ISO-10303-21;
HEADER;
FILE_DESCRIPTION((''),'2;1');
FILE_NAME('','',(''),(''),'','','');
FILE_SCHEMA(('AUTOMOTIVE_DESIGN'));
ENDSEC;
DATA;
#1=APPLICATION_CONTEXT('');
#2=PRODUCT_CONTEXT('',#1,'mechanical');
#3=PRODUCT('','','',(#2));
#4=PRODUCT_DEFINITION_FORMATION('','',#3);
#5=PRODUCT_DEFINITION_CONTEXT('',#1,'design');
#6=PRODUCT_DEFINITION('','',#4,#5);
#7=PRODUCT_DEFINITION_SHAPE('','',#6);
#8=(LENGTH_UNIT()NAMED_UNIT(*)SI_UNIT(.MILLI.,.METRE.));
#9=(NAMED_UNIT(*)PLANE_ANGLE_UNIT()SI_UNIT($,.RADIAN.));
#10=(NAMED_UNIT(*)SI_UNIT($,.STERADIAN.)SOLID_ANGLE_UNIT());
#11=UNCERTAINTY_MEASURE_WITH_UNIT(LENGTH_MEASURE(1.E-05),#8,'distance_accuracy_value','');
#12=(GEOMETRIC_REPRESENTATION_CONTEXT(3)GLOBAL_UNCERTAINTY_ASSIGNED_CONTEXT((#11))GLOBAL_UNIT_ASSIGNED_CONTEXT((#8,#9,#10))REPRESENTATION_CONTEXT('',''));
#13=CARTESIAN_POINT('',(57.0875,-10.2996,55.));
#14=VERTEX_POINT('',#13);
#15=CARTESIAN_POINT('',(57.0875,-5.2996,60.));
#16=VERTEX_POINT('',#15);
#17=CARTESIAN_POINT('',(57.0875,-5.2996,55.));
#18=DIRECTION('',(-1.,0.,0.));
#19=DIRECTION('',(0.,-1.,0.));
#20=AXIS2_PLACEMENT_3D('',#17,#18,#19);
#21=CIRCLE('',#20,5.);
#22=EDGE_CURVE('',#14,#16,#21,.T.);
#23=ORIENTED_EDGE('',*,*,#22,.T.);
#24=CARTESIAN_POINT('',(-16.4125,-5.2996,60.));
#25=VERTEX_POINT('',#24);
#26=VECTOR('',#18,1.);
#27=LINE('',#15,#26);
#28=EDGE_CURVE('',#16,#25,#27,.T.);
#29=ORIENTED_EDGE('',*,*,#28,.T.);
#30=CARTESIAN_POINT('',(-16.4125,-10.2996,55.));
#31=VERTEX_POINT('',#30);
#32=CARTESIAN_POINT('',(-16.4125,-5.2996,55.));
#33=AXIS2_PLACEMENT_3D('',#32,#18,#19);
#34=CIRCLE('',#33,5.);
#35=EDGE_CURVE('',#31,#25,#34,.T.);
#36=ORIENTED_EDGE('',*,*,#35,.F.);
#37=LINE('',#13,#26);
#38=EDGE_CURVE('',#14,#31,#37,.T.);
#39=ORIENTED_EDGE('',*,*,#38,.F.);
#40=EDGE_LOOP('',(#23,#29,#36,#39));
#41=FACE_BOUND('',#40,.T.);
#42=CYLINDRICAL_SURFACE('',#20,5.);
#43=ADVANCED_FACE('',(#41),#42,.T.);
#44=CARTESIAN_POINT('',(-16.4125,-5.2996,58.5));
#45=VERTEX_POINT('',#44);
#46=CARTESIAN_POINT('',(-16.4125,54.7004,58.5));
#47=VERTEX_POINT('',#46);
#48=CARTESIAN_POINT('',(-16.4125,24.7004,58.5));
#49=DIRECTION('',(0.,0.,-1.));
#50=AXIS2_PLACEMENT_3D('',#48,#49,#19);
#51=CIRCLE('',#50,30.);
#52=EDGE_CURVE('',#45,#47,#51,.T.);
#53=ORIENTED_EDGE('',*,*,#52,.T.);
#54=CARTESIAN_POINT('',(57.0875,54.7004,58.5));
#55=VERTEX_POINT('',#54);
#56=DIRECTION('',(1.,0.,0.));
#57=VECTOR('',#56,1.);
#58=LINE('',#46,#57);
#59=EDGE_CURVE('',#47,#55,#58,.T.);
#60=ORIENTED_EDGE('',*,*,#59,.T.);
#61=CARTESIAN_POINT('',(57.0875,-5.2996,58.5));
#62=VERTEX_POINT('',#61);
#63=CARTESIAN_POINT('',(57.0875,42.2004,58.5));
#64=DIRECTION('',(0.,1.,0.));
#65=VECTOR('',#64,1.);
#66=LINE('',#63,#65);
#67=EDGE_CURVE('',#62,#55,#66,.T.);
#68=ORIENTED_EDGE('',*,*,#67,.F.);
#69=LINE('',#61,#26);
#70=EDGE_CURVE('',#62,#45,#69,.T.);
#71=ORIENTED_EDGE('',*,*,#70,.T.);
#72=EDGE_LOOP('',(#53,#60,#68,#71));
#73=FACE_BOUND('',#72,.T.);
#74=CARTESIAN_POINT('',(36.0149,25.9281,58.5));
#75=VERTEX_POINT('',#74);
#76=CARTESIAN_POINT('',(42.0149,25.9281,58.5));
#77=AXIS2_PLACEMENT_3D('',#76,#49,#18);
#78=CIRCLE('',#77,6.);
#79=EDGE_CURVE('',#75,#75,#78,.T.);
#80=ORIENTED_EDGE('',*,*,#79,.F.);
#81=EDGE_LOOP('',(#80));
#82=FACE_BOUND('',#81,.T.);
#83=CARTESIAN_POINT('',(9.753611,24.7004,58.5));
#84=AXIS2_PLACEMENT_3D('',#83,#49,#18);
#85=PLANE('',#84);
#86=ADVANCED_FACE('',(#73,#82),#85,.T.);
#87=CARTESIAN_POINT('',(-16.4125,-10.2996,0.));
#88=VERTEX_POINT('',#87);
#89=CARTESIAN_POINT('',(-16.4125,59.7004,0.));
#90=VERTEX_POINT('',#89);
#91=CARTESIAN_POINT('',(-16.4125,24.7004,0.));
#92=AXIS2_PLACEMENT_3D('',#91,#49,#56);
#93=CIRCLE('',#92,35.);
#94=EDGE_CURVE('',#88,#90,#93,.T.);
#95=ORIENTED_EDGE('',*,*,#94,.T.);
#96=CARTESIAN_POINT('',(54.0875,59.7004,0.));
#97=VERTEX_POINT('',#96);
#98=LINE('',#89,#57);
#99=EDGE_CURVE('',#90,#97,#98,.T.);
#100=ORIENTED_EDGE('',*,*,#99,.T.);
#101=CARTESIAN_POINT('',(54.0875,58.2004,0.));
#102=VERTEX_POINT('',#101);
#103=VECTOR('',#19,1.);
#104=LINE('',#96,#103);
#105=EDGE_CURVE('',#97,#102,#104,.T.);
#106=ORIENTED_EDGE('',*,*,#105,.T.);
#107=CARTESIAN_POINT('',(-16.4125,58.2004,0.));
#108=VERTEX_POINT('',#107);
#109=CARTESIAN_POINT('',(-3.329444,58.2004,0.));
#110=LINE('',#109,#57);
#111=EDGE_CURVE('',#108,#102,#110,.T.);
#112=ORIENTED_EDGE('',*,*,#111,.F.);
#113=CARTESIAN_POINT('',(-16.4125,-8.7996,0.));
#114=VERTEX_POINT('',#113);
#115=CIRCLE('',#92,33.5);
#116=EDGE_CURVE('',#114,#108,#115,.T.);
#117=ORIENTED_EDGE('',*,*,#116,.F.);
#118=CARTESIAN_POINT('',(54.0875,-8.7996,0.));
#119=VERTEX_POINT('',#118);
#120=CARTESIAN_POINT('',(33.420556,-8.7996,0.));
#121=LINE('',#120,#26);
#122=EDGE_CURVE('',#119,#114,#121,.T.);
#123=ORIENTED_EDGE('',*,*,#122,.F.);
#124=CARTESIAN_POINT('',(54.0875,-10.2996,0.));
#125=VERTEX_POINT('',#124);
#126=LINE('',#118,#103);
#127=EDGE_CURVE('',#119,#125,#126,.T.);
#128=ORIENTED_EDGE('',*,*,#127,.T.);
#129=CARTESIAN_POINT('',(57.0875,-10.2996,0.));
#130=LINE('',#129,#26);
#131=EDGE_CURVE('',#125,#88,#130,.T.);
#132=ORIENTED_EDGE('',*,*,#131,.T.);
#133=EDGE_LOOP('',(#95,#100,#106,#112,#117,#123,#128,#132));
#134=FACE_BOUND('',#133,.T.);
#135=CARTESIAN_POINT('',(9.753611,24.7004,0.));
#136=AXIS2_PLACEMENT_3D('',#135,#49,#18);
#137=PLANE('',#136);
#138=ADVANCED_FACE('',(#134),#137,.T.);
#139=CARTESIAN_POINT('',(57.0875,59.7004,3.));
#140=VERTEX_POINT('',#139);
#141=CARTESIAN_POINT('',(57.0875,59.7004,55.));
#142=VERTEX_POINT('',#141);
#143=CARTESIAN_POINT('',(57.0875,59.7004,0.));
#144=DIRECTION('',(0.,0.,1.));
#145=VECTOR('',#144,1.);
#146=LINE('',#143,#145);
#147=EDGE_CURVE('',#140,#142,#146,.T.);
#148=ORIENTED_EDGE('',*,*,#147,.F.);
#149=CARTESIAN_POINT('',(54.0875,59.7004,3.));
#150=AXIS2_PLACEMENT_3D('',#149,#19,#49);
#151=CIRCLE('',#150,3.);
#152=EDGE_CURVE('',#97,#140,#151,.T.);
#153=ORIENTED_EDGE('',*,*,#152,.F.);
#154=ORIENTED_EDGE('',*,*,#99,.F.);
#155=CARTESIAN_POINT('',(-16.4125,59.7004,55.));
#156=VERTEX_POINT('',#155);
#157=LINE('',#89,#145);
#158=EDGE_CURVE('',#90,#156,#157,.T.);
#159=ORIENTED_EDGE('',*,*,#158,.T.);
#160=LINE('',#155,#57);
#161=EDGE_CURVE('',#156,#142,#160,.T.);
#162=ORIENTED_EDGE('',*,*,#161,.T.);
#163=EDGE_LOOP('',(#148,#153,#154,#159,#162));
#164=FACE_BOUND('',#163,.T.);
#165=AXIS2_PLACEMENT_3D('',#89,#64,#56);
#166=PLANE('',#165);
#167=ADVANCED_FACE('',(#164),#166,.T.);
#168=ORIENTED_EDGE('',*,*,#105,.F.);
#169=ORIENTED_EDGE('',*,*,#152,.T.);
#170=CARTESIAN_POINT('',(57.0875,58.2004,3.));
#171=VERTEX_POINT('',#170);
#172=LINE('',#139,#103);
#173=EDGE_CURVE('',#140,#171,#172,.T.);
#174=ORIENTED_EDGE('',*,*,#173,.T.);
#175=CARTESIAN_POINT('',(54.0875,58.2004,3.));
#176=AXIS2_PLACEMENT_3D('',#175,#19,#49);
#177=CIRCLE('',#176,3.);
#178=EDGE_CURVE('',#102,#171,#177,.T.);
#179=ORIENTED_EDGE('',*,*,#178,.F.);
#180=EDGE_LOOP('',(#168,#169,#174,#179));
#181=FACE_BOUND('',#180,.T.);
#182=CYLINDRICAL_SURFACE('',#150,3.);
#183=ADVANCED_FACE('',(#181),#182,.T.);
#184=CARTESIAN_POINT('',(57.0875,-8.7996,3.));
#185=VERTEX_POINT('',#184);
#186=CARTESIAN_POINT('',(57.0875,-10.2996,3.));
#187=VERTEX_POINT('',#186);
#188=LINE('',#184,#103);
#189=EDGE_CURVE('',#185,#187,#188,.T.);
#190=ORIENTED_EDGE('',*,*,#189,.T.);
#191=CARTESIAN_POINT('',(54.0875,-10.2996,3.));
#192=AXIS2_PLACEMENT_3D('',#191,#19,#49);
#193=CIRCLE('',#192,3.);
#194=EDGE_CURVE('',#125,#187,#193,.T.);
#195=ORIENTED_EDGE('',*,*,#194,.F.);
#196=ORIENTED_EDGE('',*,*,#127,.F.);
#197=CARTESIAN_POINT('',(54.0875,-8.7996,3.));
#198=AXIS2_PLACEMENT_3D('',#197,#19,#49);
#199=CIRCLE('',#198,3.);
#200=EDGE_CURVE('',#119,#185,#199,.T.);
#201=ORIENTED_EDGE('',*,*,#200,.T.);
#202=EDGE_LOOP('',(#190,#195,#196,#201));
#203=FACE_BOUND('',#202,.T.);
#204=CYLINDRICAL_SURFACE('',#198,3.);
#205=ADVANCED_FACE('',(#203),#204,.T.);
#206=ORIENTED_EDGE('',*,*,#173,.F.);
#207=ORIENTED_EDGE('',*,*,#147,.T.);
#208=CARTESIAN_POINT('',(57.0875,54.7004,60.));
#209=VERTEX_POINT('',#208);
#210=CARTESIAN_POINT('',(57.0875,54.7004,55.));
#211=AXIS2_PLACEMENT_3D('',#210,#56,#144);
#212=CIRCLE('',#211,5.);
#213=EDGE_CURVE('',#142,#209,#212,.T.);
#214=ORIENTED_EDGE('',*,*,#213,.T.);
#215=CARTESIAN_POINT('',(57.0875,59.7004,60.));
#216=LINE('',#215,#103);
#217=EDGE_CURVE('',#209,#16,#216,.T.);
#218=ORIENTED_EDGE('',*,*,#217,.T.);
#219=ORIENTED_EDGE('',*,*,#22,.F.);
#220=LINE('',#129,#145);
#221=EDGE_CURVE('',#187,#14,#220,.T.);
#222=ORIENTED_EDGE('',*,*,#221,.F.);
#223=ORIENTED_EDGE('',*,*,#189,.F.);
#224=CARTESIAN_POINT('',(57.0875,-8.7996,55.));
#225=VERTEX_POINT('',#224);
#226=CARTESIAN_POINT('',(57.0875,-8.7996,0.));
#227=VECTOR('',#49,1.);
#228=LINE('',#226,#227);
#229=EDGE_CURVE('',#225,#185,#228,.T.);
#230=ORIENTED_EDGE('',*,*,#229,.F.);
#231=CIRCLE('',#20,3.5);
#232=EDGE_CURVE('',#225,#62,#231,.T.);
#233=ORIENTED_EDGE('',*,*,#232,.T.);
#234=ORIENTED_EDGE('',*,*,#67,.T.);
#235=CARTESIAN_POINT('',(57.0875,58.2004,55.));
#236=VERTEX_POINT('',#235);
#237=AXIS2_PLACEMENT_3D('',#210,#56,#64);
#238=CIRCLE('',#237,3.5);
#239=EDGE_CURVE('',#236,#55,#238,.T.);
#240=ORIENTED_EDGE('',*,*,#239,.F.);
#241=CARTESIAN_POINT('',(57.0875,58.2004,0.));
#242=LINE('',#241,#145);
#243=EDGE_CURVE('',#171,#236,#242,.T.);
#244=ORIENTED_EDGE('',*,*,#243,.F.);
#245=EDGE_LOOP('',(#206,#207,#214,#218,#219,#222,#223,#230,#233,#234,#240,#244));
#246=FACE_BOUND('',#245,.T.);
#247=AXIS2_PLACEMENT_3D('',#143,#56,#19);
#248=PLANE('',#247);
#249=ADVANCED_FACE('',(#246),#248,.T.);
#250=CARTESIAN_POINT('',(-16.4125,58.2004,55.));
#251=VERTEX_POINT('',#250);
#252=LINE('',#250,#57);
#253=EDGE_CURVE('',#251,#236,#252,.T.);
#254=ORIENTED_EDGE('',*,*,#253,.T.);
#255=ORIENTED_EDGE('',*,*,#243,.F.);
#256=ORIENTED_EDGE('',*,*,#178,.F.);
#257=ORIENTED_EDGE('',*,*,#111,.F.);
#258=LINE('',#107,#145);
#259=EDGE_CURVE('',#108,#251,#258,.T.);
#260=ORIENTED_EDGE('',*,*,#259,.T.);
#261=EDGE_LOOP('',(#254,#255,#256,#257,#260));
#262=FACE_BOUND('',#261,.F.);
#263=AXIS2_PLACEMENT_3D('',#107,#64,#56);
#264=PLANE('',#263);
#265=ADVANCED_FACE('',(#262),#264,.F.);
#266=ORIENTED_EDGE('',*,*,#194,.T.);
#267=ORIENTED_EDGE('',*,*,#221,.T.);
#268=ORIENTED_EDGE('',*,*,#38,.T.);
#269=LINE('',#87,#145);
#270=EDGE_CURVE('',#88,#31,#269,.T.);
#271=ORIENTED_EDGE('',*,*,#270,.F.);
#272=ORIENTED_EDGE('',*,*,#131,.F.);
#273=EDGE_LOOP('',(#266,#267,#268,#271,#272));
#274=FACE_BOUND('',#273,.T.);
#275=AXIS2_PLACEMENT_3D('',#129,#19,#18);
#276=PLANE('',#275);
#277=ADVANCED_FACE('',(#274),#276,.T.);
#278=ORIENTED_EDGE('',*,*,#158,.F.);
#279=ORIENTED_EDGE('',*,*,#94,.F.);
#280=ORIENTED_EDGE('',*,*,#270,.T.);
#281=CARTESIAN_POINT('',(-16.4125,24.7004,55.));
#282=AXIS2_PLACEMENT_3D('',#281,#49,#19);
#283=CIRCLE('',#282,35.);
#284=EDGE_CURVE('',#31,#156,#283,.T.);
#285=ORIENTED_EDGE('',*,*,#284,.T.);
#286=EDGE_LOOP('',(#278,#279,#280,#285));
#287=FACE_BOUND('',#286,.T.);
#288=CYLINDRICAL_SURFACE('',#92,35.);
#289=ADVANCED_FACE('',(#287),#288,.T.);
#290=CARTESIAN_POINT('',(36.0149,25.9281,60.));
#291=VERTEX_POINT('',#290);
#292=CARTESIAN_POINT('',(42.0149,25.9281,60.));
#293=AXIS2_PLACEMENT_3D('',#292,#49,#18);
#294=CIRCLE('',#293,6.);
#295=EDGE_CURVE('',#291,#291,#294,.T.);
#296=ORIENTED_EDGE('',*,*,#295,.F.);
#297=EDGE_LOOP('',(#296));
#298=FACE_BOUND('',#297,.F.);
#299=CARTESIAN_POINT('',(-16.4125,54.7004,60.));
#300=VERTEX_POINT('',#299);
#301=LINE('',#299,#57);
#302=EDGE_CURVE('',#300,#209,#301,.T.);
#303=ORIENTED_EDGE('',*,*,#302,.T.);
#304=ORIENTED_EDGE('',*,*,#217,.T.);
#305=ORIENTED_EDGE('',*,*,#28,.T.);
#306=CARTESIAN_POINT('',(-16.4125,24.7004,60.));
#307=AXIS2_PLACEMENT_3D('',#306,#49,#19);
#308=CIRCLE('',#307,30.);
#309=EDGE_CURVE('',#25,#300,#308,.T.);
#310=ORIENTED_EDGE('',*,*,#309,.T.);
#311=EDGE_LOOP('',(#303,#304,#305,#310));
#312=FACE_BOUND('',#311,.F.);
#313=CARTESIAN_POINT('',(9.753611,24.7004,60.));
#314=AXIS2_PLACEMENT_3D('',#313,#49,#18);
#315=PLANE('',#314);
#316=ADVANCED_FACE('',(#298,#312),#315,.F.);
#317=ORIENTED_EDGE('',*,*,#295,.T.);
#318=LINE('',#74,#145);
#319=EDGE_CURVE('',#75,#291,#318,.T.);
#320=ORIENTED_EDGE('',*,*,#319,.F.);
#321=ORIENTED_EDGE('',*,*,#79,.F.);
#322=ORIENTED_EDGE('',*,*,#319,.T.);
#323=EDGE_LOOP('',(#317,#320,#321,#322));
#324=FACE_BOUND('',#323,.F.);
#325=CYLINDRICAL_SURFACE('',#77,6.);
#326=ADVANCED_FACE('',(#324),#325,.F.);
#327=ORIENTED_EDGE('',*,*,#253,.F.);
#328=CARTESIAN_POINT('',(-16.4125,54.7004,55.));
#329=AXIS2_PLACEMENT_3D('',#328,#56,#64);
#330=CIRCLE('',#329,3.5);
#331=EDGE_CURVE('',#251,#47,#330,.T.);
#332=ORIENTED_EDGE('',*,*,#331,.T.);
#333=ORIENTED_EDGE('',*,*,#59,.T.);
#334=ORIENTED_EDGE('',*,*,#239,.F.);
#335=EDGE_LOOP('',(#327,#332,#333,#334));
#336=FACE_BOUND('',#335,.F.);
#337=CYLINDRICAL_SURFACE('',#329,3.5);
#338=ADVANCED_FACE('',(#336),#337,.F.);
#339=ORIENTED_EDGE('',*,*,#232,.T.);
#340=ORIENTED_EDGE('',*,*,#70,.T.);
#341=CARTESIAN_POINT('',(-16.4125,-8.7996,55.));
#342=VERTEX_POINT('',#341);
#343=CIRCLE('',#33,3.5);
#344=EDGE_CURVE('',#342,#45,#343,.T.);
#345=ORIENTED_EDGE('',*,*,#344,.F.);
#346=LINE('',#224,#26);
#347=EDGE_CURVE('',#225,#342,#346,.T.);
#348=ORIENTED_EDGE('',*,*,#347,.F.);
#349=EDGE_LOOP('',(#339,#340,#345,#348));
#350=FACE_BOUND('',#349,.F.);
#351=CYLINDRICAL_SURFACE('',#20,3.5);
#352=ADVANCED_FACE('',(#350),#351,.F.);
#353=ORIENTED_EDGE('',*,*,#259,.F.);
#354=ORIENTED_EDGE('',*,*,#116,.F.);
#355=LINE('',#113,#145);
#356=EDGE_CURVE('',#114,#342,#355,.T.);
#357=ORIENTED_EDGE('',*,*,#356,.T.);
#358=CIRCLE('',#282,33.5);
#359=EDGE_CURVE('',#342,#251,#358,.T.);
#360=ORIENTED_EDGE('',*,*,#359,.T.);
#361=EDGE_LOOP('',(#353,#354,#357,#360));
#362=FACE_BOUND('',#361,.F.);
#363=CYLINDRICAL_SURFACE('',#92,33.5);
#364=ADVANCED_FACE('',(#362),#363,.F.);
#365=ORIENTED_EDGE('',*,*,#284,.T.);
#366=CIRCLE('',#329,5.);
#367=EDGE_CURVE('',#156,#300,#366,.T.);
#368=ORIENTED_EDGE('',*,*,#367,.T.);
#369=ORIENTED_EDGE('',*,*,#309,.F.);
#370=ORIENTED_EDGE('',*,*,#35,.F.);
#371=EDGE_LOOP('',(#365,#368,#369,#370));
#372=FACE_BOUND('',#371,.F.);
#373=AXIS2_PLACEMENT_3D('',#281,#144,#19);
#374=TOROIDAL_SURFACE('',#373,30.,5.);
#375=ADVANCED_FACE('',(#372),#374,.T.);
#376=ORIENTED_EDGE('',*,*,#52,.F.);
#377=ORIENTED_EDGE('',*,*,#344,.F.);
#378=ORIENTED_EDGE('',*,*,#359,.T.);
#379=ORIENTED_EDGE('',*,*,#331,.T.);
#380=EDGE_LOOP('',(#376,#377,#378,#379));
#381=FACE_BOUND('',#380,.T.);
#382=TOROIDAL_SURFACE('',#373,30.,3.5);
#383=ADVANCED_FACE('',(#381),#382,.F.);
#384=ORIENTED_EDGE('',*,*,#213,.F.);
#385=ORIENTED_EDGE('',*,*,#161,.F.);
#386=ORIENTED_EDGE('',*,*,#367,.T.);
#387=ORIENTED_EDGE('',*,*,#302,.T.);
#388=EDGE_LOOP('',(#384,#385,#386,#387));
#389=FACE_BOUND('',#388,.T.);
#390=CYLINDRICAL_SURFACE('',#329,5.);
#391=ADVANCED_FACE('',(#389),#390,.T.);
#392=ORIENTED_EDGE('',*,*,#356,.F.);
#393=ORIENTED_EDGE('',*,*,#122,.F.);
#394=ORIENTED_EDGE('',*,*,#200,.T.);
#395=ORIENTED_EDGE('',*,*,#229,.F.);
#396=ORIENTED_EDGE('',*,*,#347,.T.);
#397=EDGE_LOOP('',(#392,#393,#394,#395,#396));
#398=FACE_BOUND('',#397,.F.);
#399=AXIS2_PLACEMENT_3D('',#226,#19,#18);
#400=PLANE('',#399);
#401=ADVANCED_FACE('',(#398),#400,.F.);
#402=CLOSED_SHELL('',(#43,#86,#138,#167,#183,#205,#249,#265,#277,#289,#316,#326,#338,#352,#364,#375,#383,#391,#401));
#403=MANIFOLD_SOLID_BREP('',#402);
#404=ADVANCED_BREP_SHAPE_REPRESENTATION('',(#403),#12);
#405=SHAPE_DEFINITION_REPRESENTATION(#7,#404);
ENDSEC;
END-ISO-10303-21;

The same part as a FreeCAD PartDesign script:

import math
import FreeCAD as App
import Part
import Sketcher
from FreeCAD import Vector


def edges_at(feature, points):
    """Names of the edges that pass closest to the given points."""
    edges = feature.Shape.Edges
    near = lambda p: min(range(len(edges)), key=lambda i: edges[i].distToShape(Part.Vertex(*p))[0])
    return sorted({f"Edge{near(p) + 1}" for p in points})


def faces_at(feature, points):
    """Names of the faces that lie closest to the given points."""
    faces = feature.Shape.Faces
    near = lambda p: min(range(len(faces)), key=lambda i: faces[i].distToShape(Part.Vertex(*p))[0])
    return sorted({f"Face{near(p) + 1}" for p in points})

doc = App.newDocument("Part")
body = doc.addObject("PartDesign::Body", "Body")

sketch1 = body.newObject("Sketcher::SketchObject", "Sketch")
sketch1.AttachmentSupport = (doc.getObject("XY_Plane"), [""])
sketch1.MapMode = "FlatFace"
sketch1.addGeometry([
    Part.LineSegment(Vector(57, 60, 0), Vector(-16, 60, 0)),
    Part.ArcOfCircle(Part.Circle(Vector(-16, 25, 0), Vector(0, 0, 1), 35), math.radians(90), math.radians(270)),
    Part.LineSegment(Vector(-16, -10, 0), Vector(57, -10, 0)),
    Part.LineSegment(Vector(57, -10, 0), Vector(57, 60, 0)),
], False)
sketch1.addConstraint([
    Sketcher.Constraint("Tangent", 0, 2, 1, 1),
    Sketcher.Constraint("Tangent", 1, 2, 2, 1),
    Sketcher.Constraint("Coincident", 2, 2, 3, 1),
    Sketcher.Constraint("Coincident", 3, 2, 0, 1),
    Sketcher.Constraint("Horizontal", 0),
    Sketcher.Constraint("Horizontal", 2),
    Sketcher.Constraint("Vertical", 3),
    Sketcher.Constraint("Radius", 1, 35.0),
    Sketcher.Constraint("DistanceX", 0, 2, 0, 1, 73.5),
    Sketcher.Constraint("DistanceX", 1, 3, -1, 1, 16.4125),
    Sketcher.Constraint("DistanceY", -1, 1, 1, 3, 24.7004),
])
pad1 = body.newObject("PartDesign::Pad", "Pad")
pad1.Profile = sketch1
pad1.Length = 60
doc.recompute()

fillet = body.newObject("PartDesign::Fillet", "Fillet")
fillet.Base = (pad1, edges_at(pad1, [(-51.413, 24.7, 60), (20.337, 59.7, 60), (20.337, -10.3, 60)]))
fillet.Radius = 5
doc.recompute()

thickness = body.newObject("PartDesign::Thickness", "Thickness")
thickness.Base = (fillet, faces_at(fillet, [(57.087, 48.734, 49.4), (40.089, 2.067, 0)]))
thickness.Value = 1.5
thickness.Reversed = True
thickness.Join = "Intersection"

sketch2 = body.newObject("Sketcher::SketchObject", "Sketch001")
sketch2.AttachmentSupport = (doc.getObject("XY_Plane"), [""])
sketch2.MapMode = "FlatFace"
sketch2.AttachmentOffset = App.Placement(Vector(0, 0, 58.5), App.Rotation())
sketch2.addGeometry(Part.Circle(Vector(42, 26, 0), Vector(0, 0, 1), 6), False)
sketch2.addConstraint([
    Sketcher.Constraint("Diameter", 0, 12.0),
    Sketcher.Constraint("DistanceX", -1, 1, 0, 3, 42.015),
    Sketcher.Constraint("DistanceY", -1, 1, 0, 3, 25.928),
])
pocket1 = body.newObject("PartDesign::Pocket", "Pocket")
pocket1.Profile = sketch2
pocket1.Type = "ThroughAll"
pocket1.Reversed = True
doc.recompute()

fillet2 = body.newObject("PartDesign::Fillet", "Fillet001")
fillet2.Base = (pocket1, edges_at(pocket1, [(57.087, -9.55, 0), (57.087, 58.95, 0)]))
fillet2.Radius = 3

doc.recompute()
